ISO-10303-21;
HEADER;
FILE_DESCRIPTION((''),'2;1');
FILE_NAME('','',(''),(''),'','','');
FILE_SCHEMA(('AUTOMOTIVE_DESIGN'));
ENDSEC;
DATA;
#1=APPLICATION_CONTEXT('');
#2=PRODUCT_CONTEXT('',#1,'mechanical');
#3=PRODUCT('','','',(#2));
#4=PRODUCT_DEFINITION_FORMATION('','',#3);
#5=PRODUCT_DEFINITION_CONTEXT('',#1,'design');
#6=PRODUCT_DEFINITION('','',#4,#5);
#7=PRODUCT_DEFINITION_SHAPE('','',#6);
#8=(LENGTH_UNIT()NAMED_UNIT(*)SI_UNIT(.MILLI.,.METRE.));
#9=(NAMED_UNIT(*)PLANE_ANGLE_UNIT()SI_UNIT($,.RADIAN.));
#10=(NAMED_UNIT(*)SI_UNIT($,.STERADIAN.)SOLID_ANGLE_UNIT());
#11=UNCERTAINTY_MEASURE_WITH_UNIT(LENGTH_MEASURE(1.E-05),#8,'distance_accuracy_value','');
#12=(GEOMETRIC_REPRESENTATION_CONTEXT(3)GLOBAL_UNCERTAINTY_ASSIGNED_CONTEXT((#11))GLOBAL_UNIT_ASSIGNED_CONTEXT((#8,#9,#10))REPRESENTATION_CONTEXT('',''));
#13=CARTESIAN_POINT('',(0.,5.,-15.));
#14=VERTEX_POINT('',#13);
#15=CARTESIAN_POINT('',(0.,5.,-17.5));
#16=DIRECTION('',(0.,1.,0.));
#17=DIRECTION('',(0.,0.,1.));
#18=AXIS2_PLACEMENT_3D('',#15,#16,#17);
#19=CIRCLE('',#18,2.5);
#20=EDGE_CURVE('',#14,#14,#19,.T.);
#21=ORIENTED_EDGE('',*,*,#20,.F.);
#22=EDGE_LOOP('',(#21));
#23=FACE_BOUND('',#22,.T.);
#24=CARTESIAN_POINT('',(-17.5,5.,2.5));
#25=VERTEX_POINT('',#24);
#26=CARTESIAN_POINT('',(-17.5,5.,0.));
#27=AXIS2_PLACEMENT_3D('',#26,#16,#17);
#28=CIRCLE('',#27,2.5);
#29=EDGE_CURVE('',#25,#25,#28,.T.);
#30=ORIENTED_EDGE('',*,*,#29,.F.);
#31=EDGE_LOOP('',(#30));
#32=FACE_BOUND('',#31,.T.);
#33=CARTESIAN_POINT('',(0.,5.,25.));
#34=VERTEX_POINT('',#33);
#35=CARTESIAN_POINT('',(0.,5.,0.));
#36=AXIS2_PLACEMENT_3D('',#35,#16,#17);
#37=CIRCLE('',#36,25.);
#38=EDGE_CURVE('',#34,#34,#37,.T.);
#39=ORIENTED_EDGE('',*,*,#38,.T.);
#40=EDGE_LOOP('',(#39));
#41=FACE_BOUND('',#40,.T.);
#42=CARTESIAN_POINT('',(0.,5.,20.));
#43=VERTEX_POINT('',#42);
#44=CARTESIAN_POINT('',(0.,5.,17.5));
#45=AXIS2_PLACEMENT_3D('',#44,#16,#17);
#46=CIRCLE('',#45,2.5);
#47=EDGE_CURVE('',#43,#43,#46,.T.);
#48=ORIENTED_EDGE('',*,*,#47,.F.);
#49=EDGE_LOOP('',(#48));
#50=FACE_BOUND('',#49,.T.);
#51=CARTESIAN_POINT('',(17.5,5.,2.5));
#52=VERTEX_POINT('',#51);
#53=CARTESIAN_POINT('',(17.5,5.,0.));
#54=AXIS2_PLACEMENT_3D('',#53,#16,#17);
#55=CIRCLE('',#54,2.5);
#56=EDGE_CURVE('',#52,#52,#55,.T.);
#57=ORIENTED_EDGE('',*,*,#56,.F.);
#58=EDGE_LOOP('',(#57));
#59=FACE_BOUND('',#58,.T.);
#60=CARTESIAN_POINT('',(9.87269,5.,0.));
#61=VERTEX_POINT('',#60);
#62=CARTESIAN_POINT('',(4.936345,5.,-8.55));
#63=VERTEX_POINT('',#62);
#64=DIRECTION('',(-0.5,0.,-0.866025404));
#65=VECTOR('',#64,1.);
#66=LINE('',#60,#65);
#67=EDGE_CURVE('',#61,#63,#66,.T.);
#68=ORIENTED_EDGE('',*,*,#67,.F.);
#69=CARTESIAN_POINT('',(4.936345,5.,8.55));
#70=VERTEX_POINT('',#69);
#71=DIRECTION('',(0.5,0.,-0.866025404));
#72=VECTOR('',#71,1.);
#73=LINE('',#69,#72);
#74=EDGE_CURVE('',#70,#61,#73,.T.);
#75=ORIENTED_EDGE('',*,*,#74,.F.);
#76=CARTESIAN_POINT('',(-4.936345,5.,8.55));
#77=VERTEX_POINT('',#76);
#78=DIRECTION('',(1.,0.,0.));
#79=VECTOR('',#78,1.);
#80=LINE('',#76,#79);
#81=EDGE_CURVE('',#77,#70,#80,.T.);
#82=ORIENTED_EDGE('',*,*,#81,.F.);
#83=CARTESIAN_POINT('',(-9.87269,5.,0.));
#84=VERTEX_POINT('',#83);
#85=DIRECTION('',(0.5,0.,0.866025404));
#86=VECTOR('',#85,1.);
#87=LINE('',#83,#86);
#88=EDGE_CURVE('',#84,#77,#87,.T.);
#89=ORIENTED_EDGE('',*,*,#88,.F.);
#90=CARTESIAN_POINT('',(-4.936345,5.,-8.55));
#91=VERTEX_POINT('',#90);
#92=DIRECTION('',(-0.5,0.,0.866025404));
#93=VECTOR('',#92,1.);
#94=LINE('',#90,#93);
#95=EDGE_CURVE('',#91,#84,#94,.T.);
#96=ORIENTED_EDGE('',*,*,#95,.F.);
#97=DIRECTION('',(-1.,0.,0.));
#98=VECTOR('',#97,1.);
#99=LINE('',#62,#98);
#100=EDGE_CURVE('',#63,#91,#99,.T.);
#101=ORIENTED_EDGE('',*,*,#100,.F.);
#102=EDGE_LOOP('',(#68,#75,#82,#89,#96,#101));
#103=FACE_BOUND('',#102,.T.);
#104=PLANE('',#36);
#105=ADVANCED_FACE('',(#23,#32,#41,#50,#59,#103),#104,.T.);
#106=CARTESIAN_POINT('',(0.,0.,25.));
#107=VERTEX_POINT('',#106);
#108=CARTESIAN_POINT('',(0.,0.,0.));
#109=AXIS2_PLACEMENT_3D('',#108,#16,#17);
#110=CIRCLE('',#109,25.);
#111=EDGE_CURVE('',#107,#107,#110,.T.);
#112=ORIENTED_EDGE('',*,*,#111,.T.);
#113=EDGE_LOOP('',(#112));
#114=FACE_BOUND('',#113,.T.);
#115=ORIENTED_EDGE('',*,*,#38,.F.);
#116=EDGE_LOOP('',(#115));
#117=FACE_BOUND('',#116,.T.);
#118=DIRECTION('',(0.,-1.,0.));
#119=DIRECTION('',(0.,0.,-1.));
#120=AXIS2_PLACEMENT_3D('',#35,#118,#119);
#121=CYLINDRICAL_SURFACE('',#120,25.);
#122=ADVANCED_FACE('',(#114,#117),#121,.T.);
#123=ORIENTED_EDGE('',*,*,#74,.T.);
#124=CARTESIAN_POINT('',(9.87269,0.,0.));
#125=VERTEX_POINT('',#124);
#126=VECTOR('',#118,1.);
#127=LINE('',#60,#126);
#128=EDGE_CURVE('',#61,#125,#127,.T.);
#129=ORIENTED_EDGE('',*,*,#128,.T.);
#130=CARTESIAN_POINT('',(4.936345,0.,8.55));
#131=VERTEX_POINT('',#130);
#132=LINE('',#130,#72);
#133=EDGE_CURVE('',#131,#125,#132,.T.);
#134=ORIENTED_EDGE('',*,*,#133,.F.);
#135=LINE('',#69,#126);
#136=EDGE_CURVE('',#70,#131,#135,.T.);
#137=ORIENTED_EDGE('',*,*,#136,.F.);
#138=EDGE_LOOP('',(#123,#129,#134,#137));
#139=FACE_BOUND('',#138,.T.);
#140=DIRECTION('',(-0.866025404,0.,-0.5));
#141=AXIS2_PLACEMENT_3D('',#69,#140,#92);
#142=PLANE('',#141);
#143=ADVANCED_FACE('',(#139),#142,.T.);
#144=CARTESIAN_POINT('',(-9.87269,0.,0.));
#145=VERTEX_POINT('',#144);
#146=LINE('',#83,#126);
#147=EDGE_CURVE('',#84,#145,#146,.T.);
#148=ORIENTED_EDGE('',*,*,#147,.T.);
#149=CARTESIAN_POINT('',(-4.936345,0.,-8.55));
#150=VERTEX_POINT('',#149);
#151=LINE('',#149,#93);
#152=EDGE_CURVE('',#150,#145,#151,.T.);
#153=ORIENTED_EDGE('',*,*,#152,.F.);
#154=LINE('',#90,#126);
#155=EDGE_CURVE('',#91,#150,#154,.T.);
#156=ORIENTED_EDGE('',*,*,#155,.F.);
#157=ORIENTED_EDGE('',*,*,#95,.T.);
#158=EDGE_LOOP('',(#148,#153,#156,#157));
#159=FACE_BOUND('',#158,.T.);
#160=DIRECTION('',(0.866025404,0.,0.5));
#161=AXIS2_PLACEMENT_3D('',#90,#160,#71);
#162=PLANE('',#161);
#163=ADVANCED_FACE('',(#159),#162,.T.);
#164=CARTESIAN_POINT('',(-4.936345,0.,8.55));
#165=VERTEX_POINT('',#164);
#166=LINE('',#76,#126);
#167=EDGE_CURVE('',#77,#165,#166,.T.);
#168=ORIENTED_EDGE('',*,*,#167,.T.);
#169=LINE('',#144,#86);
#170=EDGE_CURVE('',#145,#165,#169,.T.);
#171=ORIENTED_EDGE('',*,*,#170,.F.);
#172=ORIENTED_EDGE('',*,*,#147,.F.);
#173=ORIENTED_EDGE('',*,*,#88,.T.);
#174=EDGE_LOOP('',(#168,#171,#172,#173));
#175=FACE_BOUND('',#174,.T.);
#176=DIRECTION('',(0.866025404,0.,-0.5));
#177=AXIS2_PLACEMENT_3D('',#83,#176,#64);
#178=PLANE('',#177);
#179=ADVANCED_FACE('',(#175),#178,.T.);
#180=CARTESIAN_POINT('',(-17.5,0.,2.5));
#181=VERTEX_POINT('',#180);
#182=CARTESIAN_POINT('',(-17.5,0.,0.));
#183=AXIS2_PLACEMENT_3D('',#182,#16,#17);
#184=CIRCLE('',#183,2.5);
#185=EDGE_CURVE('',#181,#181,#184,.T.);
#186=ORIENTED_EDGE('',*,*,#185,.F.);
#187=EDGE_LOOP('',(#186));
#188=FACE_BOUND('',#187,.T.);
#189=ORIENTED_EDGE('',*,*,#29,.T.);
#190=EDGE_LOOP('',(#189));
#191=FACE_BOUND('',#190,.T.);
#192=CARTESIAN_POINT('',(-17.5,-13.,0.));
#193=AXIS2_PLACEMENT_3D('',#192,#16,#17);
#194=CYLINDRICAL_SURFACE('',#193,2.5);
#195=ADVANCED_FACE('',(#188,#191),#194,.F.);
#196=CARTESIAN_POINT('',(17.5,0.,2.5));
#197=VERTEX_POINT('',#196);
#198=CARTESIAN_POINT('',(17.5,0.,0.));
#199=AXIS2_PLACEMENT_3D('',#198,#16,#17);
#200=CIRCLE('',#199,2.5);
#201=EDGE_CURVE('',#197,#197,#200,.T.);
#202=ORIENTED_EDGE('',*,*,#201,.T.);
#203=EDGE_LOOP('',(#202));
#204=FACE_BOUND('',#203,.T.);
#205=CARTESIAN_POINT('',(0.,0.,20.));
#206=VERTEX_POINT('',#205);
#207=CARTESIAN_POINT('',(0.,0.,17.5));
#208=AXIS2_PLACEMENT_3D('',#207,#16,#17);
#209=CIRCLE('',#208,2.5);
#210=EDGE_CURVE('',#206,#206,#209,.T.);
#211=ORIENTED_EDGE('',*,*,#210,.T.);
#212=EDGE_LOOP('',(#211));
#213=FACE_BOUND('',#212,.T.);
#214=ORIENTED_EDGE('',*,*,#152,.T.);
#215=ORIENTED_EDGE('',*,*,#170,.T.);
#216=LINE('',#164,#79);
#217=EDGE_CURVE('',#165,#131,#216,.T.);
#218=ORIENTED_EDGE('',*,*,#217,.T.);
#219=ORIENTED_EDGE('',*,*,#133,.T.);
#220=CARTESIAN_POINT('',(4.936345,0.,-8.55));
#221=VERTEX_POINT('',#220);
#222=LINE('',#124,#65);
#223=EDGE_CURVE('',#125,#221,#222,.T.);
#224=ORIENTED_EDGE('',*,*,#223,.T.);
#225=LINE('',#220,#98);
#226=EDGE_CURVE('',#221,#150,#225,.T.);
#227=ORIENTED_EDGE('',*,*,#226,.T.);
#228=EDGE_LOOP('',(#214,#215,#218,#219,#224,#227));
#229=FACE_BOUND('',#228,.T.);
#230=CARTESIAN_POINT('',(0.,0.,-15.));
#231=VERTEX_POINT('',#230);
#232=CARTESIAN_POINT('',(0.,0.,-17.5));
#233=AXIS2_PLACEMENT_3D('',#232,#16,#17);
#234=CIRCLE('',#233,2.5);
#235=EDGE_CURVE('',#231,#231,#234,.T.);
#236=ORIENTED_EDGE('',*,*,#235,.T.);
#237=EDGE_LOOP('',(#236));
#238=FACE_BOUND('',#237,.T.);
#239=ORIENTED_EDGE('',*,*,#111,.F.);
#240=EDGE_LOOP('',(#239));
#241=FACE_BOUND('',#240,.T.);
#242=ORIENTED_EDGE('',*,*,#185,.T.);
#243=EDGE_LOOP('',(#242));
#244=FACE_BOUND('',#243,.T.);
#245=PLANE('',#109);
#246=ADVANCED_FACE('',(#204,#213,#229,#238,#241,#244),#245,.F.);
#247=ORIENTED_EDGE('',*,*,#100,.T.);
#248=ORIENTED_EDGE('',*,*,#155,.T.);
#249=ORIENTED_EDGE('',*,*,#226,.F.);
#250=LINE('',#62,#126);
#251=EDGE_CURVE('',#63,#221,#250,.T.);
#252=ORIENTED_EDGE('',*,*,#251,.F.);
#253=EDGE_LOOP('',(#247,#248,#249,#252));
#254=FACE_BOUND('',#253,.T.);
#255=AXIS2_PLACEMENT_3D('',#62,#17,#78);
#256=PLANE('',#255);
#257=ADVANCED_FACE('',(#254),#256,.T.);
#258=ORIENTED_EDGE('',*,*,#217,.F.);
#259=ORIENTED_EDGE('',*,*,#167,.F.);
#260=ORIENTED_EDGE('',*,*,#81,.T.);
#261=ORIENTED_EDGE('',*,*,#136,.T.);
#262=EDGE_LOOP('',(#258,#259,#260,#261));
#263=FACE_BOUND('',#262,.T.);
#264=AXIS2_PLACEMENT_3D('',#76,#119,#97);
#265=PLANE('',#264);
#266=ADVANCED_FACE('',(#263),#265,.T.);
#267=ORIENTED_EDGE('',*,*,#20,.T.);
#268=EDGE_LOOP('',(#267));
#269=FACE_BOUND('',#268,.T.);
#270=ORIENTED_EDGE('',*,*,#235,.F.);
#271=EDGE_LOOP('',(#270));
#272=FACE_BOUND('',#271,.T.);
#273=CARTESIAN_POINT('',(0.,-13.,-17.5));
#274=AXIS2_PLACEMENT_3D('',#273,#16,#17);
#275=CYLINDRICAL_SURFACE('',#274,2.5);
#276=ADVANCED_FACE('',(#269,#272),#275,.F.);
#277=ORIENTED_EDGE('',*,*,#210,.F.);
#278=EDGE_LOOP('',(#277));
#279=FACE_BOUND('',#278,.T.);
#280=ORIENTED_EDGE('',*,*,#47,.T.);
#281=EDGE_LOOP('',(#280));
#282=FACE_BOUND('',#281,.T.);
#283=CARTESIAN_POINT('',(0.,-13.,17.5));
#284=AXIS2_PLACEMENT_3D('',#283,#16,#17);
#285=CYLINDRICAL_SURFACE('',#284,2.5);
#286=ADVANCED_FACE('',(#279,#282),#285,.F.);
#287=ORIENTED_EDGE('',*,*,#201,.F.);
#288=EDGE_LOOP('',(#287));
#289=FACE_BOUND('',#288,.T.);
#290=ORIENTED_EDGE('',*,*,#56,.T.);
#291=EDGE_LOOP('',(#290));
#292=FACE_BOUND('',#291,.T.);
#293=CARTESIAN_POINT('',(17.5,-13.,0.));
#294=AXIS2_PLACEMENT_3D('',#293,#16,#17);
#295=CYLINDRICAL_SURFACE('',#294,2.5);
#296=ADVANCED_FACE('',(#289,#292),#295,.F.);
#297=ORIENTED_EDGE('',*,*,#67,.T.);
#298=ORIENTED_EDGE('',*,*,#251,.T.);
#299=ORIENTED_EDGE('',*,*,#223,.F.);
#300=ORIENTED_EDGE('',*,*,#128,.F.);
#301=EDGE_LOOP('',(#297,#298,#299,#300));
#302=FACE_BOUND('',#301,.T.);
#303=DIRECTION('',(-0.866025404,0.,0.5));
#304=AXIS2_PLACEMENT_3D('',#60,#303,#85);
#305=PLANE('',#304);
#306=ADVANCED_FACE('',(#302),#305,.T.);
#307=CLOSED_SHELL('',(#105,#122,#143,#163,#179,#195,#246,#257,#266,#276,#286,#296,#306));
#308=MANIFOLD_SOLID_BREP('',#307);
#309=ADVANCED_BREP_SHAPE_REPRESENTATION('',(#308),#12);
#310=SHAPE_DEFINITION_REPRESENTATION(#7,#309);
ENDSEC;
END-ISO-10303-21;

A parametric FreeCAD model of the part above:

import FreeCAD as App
import Part
import Sketcher
Q = App.Units.Quantity

doc = App.newDocument("Part")
body = doc.addObject("PartDesign::Body", "Body")

# Sketch on XZ plane
sketch1 = doc.addObject("Sketcher::SketchObject", "Sketch")
body.addObject(sketch1)
sketch1.AttachmentSupport = (doc.XZ_Plane, [""])
sketch1.MapMode = "FlatFace"
sketch1.addGeometry(Part.Circle(App.Vector(0, 0, 0), App.Vector(0, 0, 1), 25), False)
sketch1.addGeometry(Part.LineSegment(App.Vector(-4.936345, 8.55, 0), App.Vector(-9.87269, 0, 0)), False)
sketch1.addGeometry(Part.LineSegment(App.Vector(-9.87269, 0, 0), App.Vector(-4.936345, -8.55, 0)), False)
sketch1.addGeometry(Part.LineSegment(App.Vector(-4.936345, -8.55, 0), App.Vector(4.936345, -8.55, 0)), False)
sketch1.addGeometry(Part.LineSegment(App.Vector(4.936345, -8.55, 0), App.Vector(9.87269, 0, 0)), False)
sketch1.addGeometry(Part.LineSegment(App.Vector(9.87269, 0, 0), App.Vector(4.936345, 8.55, 0)), False)
sketch1.addGeometry(Part.LineSegment(App.Vector(4.936345, 8.55, 0), App.Vector(-4.936345, 8.55, 0)), False)
sketch1.addConstraint(Sketcher.Constraint("Coincident", 1, 2, 2, 1))
sketch1.addConstraint(Sketcher.Constraint("Coincident", 2, 2, 3, 1))
sketch1.addConstraint(Sketcher.Constraint("Coincident", 3, 2, 4, 1))
sketch1.addConstraint(Sketcher.Constraint("Coincident", 4, 2, 5, 1))
sketch1.addConstraint(Sketcher.Constraint("Coincident", 5, 2, 6, 1))
sketch1.addConstraint(Sketcher.Constraint("Coincident", 6, 2, 1, 1))
sketch1.addConstraint(Sketcher.Constraint("Horizontal", 3))
sketch1.addConstraint(Sketcher.Constraint("Horizontal", 6))
sketch1.addConstraint(Sketcher.Constraint("Coincident", 0, 3, -1, 1))
sketch1.addConstraint(Sketcher.Constraint("Symmetric", 1, 2, 4, 2, -1, 1))
sketch1.addConstraint(Sketcher.Constraint("Symmetric", 2, 2, 5, 2, -1, 1))
sketch1.addConstraint(Sketcher.Constraint("PointOnObject", 1, 2, -1))
sketch1.addConstraint(Sketcher.Constraint("Parallel", 1, 4))
sketch1.addConstraint(Sketcher.Constraint("Vertical", 3, 2, 5, 2))
sketch1.addConstraint(Sketcher.Constraint("Diameter", 0, Q("50 mm")))
sketch1.addConstraint(Sketcher.Constraint("Angle", 1, Q("-120 deg")))
sketch1.addConstraint(Sketcher.Constraint("DistanceY", 3, 2, 5, 2, Q("17.1 mm")))
sketch1.addConstraint(Sketcher.Constraint("DistanceX", 3, 1, 3, 2, Q("9.87269 mm")))
pad1 = doc.addObject("PartDesign::Pad", "Pad")
body.addObject(pad1)
pad1.Profile = sketch1
pad1.Length = 5
pad1.Reversed = True

# Sketch on XZ plane
sketch2 = doc.addObject("Sketcher::SketchObject", "Sketch001")
body.addObject(sketch2)
sketch2.AttachmentSupport = (doc.XZ_Plane, [""])
sketch2.MapMode = "FlatFace"
sketch2.AttachmentOffset = App.Placement(App.Vector(0, 0, -5), App.Rotation())
sketch2.addGeometry(Part.Circle(App.Vector(0, -17.5, 0), App.Vector(0, 0, 1), 2.5), False)
sketch2.addGeometry(Part.Circle(App.Vector(17.5, 0, 0), App.Vector(0, 0, 1), 2.5), False)
sketch2.addGeometry(Part.Circle(App.Vector(0, 17.5, 0), App.Vector(0, 0, 1), 2.5), False)
sketch2.addGeometry(Part.Circle(App.Vector(-17.5, 0, 0), App.Vector(0, 0, 1), 2.5), False)
sketch2.addConstraint(Sketcher.Constraint("Equal", 0, 1))
sketch2.addConstraint(Sketcher.Constraint("Equal", 1, 2))
sketch2.addConstraint(Sketcher.Constraint("Equal", 2, 3))
sketch2.addConstraint(Sketcher.Constraint("Symmetric", 0, 3, 2, 3, -1, 1))
sketch2.addConstraint(Sketcher.Constraint("Symmetric", 1, 3, 3, 3, -1, 1))
sketch2.addConstraint(Sketcher.Constraint("PointOnObject", 0, 3, -2))
sketch2.addConstraint(Sketcher.Constraint("PointOnObject", 1, 3, -1))
sketch2.addConstraint(Sketcher.Constraint("Diameter", 0, Q("5 mm")))
sketch2.addConstraint(Sketcher.Constraint("DistanceY", 0, 3, 2, 3, Q("35 mm")))
sketch2.addConstraint(Sketcher.Constraint("DistanceX", 3, 3, 1, 3, Q("35 mm")))
pocket1 = doc.addObject("PartDesign::Pocket", "Pocket")
body.addObject(pocket1)
pocket1.Profile = sketch2
pocket1.Length = 18
pocket1.Reversed = True

doc.recompute()
